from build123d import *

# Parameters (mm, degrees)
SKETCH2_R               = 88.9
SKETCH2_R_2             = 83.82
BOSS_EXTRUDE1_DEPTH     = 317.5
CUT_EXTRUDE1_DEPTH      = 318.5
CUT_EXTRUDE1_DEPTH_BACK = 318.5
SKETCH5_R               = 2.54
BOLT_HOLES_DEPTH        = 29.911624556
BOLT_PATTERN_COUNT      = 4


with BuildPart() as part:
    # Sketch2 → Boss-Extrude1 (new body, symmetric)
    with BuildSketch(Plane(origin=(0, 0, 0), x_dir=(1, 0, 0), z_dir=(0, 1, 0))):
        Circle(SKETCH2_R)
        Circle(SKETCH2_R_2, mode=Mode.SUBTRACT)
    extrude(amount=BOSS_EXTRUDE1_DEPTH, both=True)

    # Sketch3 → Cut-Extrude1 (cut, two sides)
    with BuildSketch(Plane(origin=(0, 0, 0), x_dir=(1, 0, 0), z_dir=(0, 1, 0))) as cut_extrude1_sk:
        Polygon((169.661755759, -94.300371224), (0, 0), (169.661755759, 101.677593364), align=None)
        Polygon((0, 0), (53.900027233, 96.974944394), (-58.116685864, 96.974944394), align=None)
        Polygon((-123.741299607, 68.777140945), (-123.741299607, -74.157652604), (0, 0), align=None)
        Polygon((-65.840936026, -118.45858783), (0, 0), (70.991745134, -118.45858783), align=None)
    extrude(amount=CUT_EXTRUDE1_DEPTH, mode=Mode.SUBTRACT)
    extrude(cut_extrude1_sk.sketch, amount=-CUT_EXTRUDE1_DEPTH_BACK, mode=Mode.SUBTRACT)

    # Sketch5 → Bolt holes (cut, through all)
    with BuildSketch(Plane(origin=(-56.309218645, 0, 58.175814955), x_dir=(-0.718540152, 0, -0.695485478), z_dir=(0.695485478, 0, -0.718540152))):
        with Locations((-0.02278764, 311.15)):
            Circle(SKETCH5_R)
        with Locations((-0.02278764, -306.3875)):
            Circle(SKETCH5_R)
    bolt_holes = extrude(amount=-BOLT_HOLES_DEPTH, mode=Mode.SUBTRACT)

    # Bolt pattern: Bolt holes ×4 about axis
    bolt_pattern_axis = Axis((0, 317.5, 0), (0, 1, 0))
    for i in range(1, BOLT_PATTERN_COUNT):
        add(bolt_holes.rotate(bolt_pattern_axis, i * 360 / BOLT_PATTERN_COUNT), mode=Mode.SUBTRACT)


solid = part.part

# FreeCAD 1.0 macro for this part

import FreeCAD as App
import Part
import Sketcher

V = App.Vector
Q = App.Units.Quantity

doc = App.newDocument("Part")
body = doc.addObject("PartDesign::Body", "Body")
body.AllowCompound = True

# Sketch on XZ plane
sketch1 = body.newObject("Sketcher::SketchObject", "Sketch")
sketch1.AttachmentSupport = (doc.getObject("XZ_Plane"), [""])
sketch1.MapMode = "FlatFace"
sketch1.addGeometry([
    Part.Circle(V(0, 0, 0), V(0, 0, 1), 88.9),
    Part.Circle(V(0, 0, 0), V(0, 0, 1), 83.82),
], False)
sketch1.addConstraint([
    Sketcher.Constraint("Coincident", 0, 3, -1, 1),
    Sketcher.Constraint("Coincident", 1, 3, -1, 1),
    Sketcher.Constraint("Diameter", 0, Q("7 in")),
    Sketcher.Constraint("Diameter", 1, Q("6.6 in")),
])
pad1 = body.newObject("PartDesign::Pad", "Pad")
pad1.Profile = sketch1
pad1.Length = Q("25 in")
pad1.Midplane = True

# Sketch on XZ plane
sketch2 = body.newObject("Sketcher::SketchObject", "Sketch001")
sketch2.AttachmentSupport = (doc.getObject("XZ_Plane"), [""])
sketch2.MapMode = "FlatFace"
sketch2.addGeometry([
    Part.LineSegment(V(0, 0, 0), V(169.661756, 94.300371, 0)),  # 0
    Part.LineSegment(V(169.661756, 94.300371, 0), V(169.661756, -101.677593, 0)),  # 1
    Part.LineSegment(V(169.661756, -101.677593, 0), V(0, 0, 0)),  # 2
    Part.LineSegment(V(0, 0, 0), V(53.900027, -96.974944, 0)),  # 3
    Part.LineSegment(V(53.900027, -96.974944, 0), V(-58.116686, -96.974944, 0)),  # 4
    Part.LineSegment(V(-58.116686, -96.974944, 0), V(0, 0, 0)),  # 5
    Part.LineSegment(V(-123.7413, -68.777141, 0), V(-123.7413, 74.157653, 0)),  # 6
    Part.LineSegment(V(-123.7413, 74.157653, 0), V(0, 0, 0)),  # 7
    Part.LineSegment(V(0, 0, 0), V(-123.7413, -68.777141, 0)),  # 8
    Part.LineSegment(V(0, 0, 0), V(-65.840936, 118.458588, 0)),  # 9
    Part.LineSegment(V(-65.840936, 118.458588, 0), V(70.991745, 118.458588, 0)),  # 10
    Part.LineSegment(V(70.991745, 118.458588, 0), V(0, 0, 0)),  # 11
], False)
sketch2.addConstraint([
    Sketcher.Constraint("Coincident", 0, 2, 1, 1),
    Sketcher.Constraint("Coincident", 1, 2, 2, 1),
    Sketcher.Constraint("Coincident", 2, 2, 0, 1),
    Sketcher.Constraint("Coincident", 3, 2, 4, 1),
    Sketcher.Constraint("Coincident", 4, 2, 5, 1),
    Sketcher.Constraint("Coincident", 5, 2, 3, 1),
    Sketcher.Constraint("Coincident", 6, 2, 7, 1),
    Sketcher.Constraint("Coincident", 7, 2, 8, 1),
    Sketcher.Constraint("Coincident", 8, 2, 6, 1),
    Sketcher.Constraint("Coincident", 9, 2, 10, 1),
    Sketcher.Constraint("Coincident", 10, 2, 11, 1),
    Sketcher.Constraint("Coincident", 11, 2, 9, 1),
    Sketcher.Constraint("Vertical", 1),
    Sketcher.Constraint("Horizontal", 4),
    Sketcher.Constraint("Vertical", 6),
    Sketcher.Constraint("Horizontal", 10),
    Sketcher.Constraint("Coincident", 2, 2, -1, 1),
    Sketcher.Constraint("Coincident", 5, 2, -1, 1),
    Sketcher.Constraint("Coincident", 7, 2, -1, 1),
    Sketcher.Constraint("Coincident", 11, 2, -1, 1),
    Sketcher.Constraint("Perpendicular", 0, 3),
    Sketcher.Constraint("Perpendicular", 2, 5),
    Sketcher.Constraint("Perpendicular", 5, 7),
    Sketcher.Constraint("Perpendicular", 3, 8),
    Sketcher.Constraint("Perpendicular", 8, 9),
    Sketcher.Constraint("Perpendicular", 7, 11),
    Sketcher.Constraint("DistanceX", 10, 1, 10, 2, Q("136.832681 mm")),
    Sketcher.Constraint("DistanceX", 6, 2, -1, 1, Q("123.7413 mm")),
    Sketcher.Constraint("Distance", 0, Q("194.107371 mm")),
    Sketcher.Constraint("Distance", 11, Q("138.102371 mm")),
    Sketcher.Constraint("DistanceX", 4, 2, 4, 1, Q("112.016713 mm")),
    Sketcher.Constraint("DistanceY", 1, 2, 1, 1, Q("195.977965 mm")),
])
pocket1 = body.newObject("PartDesign::Pocket", "Pocket")
pocket1.Profile = sketch2
pocket1.Type = "ThroughAll"
pocket1.Midplane = True

# Sketch on an angled plane
sketch3 = body.newObject("Sketcher::SketchObject", "Sketch002")
sketch3.Placement = App.Placement(V(-56.309219, 0, 58.175815), App.Rotation(V(-0.718540152, 0, -0.695485478), V(0, 1, 0), V(0.695485478, 0, -0.718540152), "ZXY"))
sketch3.addGeometry([
    Part.Circle(V(-0.022788, 311.15, 0), V(0, 0, 1), 2.54),
    Part.Circle(V(-0.022788, -306.3875, 0), V(0, 0, 1), 2.54),
], False)
sketch3.addConstraint([
    Sketcher.Constraint("Equal", 0, 1),
    Sketcher.Constraint("Vertical", 0, 3, 1, 3),
    Sketcher.Constraint("Diameter", 0, Q("0.2 in")),
    Sketcher.Constraint("DistanceY", -1, 1, 0, 3, Q("12.25 in")),
    Sketcher.Constraint("DistanceY", 1, 3, -1, 1, Q("12.0625 in")),
    Sketcher.Constraint("DistanceX", 0, 3, -1, 1, Q("0.022788 mm")),
])
pocket2 = body.newObject("PartDesign::Pocket", "Pocket001")
pocket2.Profile = sketch3
pocket2.Type = "ThroughAll"
doc.recompute()

polarpattern = body.newObject("PartDesign::PolarPattern", "PolarPattern")
polarpattern.Originals = [pocket2]
polarpattern.Axis = (doc.getObject("Y_Axis"), [""])
polarpattern.Angle = 360
polarpattern.Occurrences = 4
body.Tip = polarpattern

doc.recompute()
